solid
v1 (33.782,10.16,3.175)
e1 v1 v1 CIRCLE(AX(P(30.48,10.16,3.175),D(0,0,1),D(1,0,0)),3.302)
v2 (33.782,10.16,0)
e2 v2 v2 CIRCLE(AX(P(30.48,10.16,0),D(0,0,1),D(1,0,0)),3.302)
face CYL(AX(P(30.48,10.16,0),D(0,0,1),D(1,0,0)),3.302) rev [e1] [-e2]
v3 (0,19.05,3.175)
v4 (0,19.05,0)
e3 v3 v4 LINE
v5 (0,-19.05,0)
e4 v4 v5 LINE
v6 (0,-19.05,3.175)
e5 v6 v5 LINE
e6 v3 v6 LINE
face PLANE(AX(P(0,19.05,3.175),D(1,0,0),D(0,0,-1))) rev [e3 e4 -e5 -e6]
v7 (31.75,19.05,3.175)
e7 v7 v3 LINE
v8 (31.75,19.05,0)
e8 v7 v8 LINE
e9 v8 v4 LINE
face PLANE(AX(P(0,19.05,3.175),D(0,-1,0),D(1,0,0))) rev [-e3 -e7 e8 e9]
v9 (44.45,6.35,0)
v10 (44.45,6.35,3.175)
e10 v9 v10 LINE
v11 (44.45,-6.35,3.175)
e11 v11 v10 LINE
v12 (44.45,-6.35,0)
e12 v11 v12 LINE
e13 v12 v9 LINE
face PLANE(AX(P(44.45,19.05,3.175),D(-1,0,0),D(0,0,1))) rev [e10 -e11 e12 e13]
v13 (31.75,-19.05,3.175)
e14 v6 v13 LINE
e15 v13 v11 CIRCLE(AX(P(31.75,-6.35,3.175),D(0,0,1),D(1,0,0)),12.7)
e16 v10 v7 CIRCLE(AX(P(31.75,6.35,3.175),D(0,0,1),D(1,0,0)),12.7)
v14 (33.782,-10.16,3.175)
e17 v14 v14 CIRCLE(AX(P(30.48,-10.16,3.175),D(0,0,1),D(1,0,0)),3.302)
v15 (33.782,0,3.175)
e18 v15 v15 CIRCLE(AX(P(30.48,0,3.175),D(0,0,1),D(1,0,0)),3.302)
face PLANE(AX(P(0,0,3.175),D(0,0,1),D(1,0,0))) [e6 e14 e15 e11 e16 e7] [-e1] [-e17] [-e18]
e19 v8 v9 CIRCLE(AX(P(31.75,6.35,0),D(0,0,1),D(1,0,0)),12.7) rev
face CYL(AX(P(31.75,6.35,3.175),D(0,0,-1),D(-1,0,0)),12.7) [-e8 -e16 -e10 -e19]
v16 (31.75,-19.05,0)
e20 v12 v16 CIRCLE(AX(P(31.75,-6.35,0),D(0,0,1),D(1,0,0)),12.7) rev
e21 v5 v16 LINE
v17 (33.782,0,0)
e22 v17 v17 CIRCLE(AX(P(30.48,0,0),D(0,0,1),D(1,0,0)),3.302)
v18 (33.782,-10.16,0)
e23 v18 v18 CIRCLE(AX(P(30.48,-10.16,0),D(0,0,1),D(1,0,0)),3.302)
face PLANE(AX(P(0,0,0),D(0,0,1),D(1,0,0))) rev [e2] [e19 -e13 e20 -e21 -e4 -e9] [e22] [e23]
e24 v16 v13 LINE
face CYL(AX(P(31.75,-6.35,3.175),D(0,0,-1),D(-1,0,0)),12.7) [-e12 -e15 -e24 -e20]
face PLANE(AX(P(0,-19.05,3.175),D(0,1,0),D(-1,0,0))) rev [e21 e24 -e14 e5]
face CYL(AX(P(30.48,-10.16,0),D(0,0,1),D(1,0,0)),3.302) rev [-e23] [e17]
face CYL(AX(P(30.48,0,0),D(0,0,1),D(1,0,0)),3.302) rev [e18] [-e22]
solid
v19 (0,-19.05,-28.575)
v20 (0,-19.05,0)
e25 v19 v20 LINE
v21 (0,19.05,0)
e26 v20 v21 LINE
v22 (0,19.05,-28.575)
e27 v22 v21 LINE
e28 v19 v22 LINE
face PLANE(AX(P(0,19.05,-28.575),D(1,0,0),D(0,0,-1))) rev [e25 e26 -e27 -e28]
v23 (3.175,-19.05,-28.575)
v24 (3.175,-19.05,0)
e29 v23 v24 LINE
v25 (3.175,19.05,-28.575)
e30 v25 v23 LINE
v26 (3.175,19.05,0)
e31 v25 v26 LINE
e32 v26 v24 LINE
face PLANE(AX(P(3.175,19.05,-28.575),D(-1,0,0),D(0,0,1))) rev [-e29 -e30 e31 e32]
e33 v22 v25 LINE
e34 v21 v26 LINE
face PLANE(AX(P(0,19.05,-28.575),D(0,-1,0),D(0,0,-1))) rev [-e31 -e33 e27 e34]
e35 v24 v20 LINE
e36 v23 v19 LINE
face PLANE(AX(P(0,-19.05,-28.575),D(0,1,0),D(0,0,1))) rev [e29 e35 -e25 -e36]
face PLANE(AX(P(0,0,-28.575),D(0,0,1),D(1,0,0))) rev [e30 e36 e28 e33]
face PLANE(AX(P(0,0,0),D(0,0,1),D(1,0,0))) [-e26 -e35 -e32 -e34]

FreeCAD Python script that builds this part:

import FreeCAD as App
import Part
import Sketcher
from FreeCAD import Vector
Q = App.Units.Quantity


def edges_at(feature, points):
    """Names of the edges that pass closest to the given points."""
    edges = feature.Shape.Edges
    near = lambda p: min(range(len(edges)), key=lambda i: edges[i].distToShape(Part.Vertex(*p))[0])
    return sorted({f"Edge{near(p) + 1}" for p in points})

doc = App.newDocument("Part")
body = doc.addObject("PartDesign::Body", "Body")

# Sketch on XY plane
sketch1 = body.newObject("Sketcher::SketchObject", "Sketch")
sketch1.AttachmentSupport = (doc.getObject("XY_Plane"), [""])
sketch1.MapMode = "FlatFace"
sketch1.addGeometry([
    Part.LineSegment(Vector(0, 19, 0), Vector(0, -19, 0)),
    Part.LineSegment(Vector(0, -19, 0), Vector(44, -19, 0)),
    Part.LineSegment(Vector(44, -19, 0), Vector(44, 19, 0)),
    Part.LineSegment(Vector(44, 19, 0), Vector(0, 19, 0)),
], False)
sketch1.addConstraint([
    Sketcher.Constraint("Coincident", 0, 2, 1, 1),
    Sketcher.Constraint("Coincident", 1, 2, 2, 1),
    Sketcher.Constraint("Coincident", 2, 2, 3, 1),
    Sketcher.Constraint("Coincident", 3, 2, 0, 1),
    Sketcher.Constraint("Vertical", 0),
    Sketcher.Constraint("Horizontal", 1),
    Sketcher.Constraint("Vertical", 2),
    Sketcher.Constraint("Horizontal", 3),
    Sketcher.Constraint("Symmetric", 0, 2, 3, 2, -1, 1),
    Sketcher.Constraint("DistanceY", 0, 2, 0, 1, Q("1.5 in")),
    Sketcher.Constraint("DistanceX", 1, 1, 1, 2, Q("1.75 in")),
])
pad1 = body.newObject("PartDesign::Pad", "Pad")
pad1.Profile = sketch1
pad1.Length = Q("0.125 in")

# Sketch on XY plane
sketch2 = body.newObject("Sketcher::SketchObject", "Sketch001")
sketch2.AttachmentSupport = (doc.getObject("XY_Plane"), [""])
sketch2.MapMode = "FlatFace"
sketch2.AttachmentOffset = App.Placement(Vector(0, 0, 0.125 * 25.4), App.Rotation())
sketch2.addGeometry([
    Part.Circle(Vector(30.5, 10.2, 0), Vector(0, 0, 1), 3.3),
    Part.Circle(Vector(30.5, -10.2, 0), Vector(0, 0, 1), 3.3),
    Part.Circle(Vector(30.5, 0, 0), Vector(0, 0, 1), 3.3),
], False)
sketch2.addConstraint([
    Sketcher.Constraint("Equal", 0, 1),
    Sketcher.Constraint("Equal", 1, 2),
    Sketcher.Constraint("Symmetric", 0, 3, 1, 3, -1),
    Sketcher.Constraint("PointOnObject", 2, 3, -1),
    Sketcher.Constraint("Vertical", 1, 3, 2, 3),
    Sketcher.Constraint("Diameter", 0, Q("0.26 in")),
    Sketcher.Constraint("DistanceX", -1, 1, 0, 3, Q("1.2 in")),
    Sketcher.Constraint("DistanceY", -1, 1, 0, 3, Q("0.4 in")),
])
pocket1 = body.newObject("PartDesign::Pocket", "Pocket")
pocket1.Profile = sketch2
pocket1.Type = "ThroughAll"
pocket1.Midplane = True
doc.recompute()

fillet = body.newObject("PartDesign::Fillet", "Fillet")
fillet.Base = (pocket1, edges_at(pocket1, [(44.45, 19.05, 1.587), (44.45, -19.05, 1.587)]))
fillet.Radius = Q("0.5 in")
body2 = doc.addObject("PartDesign::Body", "Body001")

# Sketch on XY plane
sketch3 = body2.newObject("Sketcher::SketchObject", "Sketch002")
sketch3.AttachmentSupport = (doc.getObject("XY_Plane001"), [""])
sketch3.MapMode = "FlatFace"
sketch3.addGeometry([
    Part.LineSegment(Vector(3.2, 19.1, 0), Vector(3.2, -19.1, 0)),
    Part.LineSegment(Vector(3.2, -19.1, 0), Vector(0, -19.1, 0)),
    Part.LineSegment(Vector(0, -19.1, 0), Vector(0, 19.1, 0)),
    Part.LineSegment(Vector(0, 19.1, 0), Vector(3.2, 19.1, 0)),
], False)
sketch3.addConstraint([
    Sketcher.Constraint("Coincident", 0, 2, 1, 1),
    Sketcher.Constraint("Coincident", 1, 2, 2, 1),
    Sketcher.Constraint("Coincident", 2, 2, 3, 1),
    Sketcher.Constraint("Coincident", 3, 2, 0, 1),
    Sketcher.Constraint("Vertical", 0),
    Sketcher.Constraint("Horizontal", 1),
    Sketcher.Constraint("Vertical", 2),
    Sketcher.Constraint("Horizontal", 3),
    Sketcher.Constraint("Symmetric", 1, 2, 2, 2, -1, 1),
    Sketcher.Constraint("DistanceY", 0, 2, 0, 1, Q("1.5 in")),
    Sketcher.Constraint("DistanceX", 1, 2, 1, 1, Q("0.125 in")),
])
pad2 = body2.newObject("PartDesign::Pad", "Pad001")
pad2.Profile = sketch3
pad2.Length = Q("1.125 in")
pad2.Reversed = True

doc.recompute()
